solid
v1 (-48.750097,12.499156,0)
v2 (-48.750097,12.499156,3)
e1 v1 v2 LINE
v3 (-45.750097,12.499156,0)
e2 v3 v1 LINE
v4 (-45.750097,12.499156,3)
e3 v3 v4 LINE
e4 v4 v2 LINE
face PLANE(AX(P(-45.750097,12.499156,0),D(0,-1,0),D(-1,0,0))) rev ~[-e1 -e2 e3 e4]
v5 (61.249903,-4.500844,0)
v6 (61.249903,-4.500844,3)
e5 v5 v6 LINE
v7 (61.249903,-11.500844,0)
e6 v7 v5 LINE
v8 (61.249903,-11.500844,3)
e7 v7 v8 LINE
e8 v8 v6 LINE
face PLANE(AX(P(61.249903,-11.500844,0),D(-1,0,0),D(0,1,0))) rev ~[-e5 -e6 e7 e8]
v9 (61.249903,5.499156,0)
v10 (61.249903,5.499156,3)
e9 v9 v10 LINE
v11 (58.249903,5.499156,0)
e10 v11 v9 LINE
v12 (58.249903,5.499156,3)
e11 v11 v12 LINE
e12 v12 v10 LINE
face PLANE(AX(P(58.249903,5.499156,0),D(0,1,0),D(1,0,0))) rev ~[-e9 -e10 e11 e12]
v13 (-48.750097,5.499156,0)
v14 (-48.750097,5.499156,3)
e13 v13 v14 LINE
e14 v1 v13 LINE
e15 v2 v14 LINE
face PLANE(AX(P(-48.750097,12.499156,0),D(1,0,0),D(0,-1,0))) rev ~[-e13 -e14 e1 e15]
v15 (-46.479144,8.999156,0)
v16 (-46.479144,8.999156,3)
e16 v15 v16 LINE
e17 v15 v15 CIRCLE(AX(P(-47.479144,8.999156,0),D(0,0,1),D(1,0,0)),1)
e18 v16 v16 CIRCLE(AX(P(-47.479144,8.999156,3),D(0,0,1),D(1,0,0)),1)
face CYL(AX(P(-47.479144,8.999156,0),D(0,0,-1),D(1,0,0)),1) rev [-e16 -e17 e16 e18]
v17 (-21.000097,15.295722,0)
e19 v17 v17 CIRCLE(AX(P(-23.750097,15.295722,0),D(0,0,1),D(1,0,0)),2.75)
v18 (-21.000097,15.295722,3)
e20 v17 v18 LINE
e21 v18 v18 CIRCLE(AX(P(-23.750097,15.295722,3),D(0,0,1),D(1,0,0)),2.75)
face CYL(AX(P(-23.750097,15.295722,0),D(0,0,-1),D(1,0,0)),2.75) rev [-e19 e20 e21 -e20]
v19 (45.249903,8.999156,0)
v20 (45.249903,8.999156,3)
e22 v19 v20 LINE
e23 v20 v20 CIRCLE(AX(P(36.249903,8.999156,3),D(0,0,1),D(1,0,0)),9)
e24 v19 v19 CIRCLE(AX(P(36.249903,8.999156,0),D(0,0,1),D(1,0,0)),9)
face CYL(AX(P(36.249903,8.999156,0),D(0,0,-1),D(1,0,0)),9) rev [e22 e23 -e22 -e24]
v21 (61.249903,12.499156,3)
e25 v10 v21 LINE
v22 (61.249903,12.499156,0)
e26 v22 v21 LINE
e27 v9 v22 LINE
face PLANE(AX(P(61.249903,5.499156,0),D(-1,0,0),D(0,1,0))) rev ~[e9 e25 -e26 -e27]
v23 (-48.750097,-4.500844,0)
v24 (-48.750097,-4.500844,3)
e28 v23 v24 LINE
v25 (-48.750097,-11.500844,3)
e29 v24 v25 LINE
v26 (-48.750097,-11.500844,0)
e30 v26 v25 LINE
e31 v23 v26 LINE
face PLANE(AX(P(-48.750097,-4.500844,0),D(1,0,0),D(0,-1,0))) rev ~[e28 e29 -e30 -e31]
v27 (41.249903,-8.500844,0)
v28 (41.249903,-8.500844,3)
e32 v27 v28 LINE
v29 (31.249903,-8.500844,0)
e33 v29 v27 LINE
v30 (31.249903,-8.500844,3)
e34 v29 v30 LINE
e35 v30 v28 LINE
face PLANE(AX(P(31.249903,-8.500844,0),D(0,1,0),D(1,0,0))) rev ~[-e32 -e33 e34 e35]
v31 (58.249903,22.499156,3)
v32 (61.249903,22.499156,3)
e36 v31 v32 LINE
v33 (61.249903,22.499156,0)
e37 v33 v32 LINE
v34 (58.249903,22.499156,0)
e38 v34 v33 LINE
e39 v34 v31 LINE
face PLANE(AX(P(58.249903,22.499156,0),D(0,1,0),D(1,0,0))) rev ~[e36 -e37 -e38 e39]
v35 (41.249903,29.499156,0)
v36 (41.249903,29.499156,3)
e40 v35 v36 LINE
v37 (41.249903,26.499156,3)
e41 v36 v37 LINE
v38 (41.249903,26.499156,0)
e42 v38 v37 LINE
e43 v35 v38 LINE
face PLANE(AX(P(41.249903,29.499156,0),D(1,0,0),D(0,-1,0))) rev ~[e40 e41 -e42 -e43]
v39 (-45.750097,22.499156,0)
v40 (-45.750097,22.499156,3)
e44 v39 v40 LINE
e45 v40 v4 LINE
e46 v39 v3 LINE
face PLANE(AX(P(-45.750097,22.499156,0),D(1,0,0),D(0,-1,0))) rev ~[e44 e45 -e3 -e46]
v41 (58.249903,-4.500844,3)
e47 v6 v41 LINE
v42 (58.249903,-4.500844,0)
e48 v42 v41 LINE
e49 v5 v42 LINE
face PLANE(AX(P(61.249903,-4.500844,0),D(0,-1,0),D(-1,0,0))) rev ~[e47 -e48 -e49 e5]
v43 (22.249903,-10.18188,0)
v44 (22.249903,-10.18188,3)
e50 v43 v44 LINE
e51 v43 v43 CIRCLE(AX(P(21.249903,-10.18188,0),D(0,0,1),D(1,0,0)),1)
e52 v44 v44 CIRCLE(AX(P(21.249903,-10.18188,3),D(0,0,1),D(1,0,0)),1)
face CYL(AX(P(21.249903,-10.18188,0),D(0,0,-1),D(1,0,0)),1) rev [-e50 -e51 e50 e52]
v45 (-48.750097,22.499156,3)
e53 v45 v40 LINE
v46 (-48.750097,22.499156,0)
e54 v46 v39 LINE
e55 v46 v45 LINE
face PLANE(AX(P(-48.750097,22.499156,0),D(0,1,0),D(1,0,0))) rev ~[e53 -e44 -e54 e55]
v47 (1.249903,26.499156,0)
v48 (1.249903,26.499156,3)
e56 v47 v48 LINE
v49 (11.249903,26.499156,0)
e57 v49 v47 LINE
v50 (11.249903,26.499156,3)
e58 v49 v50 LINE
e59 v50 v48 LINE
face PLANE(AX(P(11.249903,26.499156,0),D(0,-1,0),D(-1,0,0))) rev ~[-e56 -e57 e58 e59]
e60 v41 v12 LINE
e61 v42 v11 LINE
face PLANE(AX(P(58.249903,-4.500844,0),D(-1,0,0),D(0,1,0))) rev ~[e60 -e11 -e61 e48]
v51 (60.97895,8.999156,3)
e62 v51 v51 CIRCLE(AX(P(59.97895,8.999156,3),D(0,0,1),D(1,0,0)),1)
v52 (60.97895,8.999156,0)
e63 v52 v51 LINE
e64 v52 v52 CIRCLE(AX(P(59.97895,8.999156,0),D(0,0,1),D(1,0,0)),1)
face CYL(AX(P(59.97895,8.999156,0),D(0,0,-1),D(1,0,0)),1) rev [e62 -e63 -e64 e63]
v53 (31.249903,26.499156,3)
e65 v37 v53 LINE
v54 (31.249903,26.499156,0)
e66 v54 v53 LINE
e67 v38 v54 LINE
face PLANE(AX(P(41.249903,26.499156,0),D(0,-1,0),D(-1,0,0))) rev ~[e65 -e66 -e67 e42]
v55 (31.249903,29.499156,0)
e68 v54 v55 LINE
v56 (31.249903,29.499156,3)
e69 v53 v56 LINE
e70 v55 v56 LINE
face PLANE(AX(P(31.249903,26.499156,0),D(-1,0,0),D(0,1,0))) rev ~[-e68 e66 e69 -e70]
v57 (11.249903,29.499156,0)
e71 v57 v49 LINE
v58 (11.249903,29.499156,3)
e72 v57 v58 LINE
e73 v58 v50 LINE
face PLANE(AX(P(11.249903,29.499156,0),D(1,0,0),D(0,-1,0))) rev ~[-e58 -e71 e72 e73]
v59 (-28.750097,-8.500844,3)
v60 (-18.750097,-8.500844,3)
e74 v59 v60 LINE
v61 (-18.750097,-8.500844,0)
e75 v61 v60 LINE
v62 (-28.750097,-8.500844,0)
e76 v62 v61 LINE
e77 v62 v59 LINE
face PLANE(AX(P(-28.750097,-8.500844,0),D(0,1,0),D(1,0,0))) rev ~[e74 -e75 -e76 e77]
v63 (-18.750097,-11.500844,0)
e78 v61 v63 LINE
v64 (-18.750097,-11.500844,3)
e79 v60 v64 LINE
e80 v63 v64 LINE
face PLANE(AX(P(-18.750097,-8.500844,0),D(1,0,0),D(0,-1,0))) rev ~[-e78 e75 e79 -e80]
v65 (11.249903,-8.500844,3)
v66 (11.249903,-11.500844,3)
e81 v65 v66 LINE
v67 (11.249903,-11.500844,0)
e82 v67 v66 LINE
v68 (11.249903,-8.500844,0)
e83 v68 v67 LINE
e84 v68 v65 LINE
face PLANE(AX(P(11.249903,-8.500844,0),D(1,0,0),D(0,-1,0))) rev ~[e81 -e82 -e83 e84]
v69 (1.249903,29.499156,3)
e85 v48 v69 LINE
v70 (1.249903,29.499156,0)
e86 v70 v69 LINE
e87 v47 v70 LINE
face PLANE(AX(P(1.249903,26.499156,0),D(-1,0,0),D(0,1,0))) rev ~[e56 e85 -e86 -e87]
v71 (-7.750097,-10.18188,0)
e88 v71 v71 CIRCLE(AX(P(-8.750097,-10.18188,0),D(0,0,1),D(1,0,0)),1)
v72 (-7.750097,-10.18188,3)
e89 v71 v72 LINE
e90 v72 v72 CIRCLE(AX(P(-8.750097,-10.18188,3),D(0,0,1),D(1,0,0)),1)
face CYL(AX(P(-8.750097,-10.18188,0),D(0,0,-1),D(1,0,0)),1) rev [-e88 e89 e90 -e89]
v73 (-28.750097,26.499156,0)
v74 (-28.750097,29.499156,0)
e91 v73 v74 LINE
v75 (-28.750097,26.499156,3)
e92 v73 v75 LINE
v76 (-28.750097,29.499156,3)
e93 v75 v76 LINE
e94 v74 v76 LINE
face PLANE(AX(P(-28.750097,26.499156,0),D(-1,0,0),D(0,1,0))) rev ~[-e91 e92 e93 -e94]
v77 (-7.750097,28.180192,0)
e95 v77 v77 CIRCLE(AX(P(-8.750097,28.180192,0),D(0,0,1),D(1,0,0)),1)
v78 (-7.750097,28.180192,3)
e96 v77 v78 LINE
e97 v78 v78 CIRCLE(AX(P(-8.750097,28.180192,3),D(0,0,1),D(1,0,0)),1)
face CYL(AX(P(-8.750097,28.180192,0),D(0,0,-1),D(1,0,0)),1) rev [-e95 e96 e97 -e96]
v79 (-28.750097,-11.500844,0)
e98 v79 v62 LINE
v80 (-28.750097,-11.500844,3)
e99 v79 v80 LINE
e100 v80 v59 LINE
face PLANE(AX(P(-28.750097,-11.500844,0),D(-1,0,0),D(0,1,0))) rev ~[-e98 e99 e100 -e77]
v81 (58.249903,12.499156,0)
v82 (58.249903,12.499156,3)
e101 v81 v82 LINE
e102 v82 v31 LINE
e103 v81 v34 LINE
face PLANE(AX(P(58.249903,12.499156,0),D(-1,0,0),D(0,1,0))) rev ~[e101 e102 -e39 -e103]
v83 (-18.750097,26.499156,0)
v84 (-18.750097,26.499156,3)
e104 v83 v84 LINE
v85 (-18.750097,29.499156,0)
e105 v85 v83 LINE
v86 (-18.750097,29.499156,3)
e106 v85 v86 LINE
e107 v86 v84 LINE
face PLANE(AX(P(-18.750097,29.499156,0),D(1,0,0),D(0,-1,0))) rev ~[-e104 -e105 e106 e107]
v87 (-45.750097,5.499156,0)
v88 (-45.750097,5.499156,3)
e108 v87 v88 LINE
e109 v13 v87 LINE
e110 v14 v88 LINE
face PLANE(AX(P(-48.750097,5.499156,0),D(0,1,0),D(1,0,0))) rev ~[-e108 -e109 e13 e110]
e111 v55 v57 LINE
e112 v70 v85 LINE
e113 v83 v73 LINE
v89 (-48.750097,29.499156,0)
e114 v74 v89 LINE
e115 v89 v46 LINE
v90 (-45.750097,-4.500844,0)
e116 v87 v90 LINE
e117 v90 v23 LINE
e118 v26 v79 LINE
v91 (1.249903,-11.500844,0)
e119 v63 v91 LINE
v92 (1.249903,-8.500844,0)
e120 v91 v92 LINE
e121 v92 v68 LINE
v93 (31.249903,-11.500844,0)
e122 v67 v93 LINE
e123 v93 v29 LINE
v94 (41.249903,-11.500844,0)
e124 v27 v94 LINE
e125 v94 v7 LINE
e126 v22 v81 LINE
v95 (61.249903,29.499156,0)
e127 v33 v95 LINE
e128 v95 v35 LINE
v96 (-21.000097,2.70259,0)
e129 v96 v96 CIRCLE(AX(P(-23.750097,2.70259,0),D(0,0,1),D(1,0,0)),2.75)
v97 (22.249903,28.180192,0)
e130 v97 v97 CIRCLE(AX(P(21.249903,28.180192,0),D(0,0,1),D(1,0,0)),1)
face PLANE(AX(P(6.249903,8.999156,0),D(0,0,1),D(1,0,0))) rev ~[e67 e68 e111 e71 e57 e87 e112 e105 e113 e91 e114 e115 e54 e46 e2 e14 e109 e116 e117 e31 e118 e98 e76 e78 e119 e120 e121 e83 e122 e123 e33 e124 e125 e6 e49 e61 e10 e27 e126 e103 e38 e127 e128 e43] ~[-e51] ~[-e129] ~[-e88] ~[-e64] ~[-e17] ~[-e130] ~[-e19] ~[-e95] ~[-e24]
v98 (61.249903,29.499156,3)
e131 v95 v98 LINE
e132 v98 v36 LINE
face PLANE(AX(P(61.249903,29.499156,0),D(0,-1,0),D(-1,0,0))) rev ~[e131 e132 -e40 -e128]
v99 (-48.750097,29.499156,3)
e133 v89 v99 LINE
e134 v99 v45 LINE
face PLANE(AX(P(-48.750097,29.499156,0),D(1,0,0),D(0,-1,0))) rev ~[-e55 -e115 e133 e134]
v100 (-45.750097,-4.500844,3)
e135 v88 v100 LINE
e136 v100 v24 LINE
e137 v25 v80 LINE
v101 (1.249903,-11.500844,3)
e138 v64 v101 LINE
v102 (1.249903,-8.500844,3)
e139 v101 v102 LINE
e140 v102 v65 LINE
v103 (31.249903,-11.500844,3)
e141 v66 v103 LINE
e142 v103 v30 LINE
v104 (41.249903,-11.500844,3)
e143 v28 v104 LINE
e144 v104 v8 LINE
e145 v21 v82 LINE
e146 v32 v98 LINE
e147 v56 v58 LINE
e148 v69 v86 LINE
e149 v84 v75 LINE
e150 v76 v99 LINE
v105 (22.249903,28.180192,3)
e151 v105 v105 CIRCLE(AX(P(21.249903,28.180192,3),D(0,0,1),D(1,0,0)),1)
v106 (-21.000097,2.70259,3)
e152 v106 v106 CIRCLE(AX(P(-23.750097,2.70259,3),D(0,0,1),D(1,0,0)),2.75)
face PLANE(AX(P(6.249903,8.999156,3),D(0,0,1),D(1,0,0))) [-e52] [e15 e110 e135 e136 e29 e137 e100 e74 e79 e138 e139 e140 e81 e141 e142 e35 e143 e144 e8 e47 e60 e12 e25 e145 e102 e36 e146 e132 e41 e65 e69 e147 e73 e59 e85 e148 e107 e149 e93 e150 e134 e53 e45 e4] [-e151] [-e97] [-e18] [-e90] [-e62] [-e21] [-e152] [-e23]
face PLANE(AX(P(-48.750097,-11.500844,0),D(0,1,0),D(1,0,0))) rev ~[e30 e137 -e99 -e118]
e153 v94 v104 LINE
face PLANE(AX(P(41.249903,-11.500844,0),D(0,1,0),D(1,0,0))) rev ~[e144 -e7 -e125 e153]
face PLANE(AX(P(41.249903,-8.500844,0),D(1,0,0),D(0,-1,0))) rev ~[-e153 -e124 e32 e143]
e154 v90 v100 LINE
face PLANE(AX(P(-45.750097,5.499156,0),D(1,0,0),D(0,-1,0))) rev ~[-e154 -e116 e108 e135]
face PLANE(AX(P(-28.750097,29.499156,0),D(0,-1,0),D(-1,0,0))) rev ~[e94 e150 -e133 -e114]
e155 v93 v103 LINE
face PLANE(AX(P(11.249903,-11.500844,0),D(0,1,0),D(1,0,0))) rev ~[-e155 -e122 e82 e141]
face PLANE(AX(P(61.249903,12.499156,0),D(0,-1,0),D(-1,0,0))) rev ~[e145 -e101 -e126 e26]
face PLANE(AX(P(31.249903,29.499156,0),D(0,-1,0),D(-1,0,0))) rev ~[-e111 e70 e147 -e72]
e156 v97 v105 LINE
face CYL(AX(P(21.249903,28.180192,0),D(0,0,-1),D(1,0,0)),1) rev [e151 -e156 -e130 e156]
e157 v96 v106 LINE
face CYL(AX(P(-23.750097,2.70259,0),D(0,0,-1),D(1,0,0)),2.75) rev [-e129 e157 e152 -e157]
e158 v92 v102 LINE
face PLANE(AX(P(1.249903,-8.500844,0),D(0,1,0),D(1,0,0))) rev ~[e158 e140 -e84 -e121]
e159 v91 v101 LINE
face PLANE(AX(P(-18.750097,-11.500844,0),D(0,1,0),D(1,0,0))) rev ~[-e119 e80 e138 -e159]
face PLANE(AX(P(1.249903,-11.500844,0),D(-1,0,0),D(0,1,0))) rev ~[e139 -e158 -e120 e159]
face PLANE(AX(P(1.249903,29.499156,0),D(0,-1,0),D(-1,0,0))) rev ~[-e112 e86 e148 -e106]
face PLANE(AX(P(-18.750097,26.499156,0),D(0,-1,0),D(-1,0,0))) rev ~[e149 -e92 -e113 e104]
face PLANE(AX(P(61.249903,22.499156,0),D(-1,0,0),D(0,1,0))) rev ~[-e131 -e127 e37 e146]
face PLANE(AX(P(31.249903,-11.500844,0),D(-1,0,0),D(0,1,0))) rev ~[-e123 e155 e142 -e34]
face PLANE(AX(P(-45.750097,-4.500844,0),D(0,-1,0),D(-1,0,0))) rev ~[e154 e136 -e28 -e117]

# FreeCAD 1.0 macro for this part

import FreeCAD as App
import Part
import Sketcher
from FreeCAD import Vector


def add_polygon(sketch, points):
    """Adds a closed chain of lines whose ends are joined by coincident constraints."""
    first, n = sketch.GeometryCount, len(points)
    for a, b in zip(points, points[1:] + points[:1]):
        sketch.addGeometry(Part.LineSegment(App.Vector(*a, 0), App.Vector(*b, 0)), False)
    for i in range(n):
        sketch.addConstraint(Sketcher.Constraint("Coincident", first + i, 2, first + (i + 1) % n, 1))

doc = App.newDocument("Part")
body = doc.addObject("PartDesign::Body", "Body")

sketch1 = doc.addObject("Sketcher::SketchObject", "Sketch")
body.addObject(sketch1)
sketch1.AttachmentSupport = (doc.XY_Plane, [""])
sketch1.MapMode = "FlatFace"
add_polygon(sketch1, [(-48.8, -4.5), (-48.8, -11.5), (-28.8, -11.5), (-28.8, -8.5), (-18.8, -8.5), (-18.8, -11.5), (1.2, -11.5), (1.2, -8.5), (11.2, -8.5), (11.2, -11.5), (31.2, -11.5), (31.2, -8.5), (41.2, -8.5), (41.2, -11.5), (61.2, -11.5), (61.2, -4.5), (58.2, -4.5), (58.2, 5.5), (61.2, 5.5), (61.2, 12.5), (58.2, 12.5), (58.2, 22.5), (61.2, 22.5), (61.2, 29.5), (41.2, 29.5), (41.2, 26.5), (31.2, 26.5), (31.2, 29.5), (11.2, 29.5), (11.2, 26.5), (1.2, 26.5), (1.2, 29.5), (-18.8, 29.5), (-18.8, 26.5), (-28.8, 26.5), (-28.8, 29.5), (-48.8, 29.5), (-48.8, 22.5), (-45.8, 22.5), (-45.8, 12.5), (-48.8, 12.5), (-48.8, 5.5), (-45.8, 5.5), (-45.8, -4.5)])
sketch1.addGeometry(Part.Circle(Vector(-8.8, -10.2, 0), Vector(0, 0, 1), 1), False)
sketch1.addGeometry(Part.Circle(Vector(-23.8, 2.7, 0), Vector(0, 0, 1), 2.8), False)
sketch1.addGeometry(Part.Circle(Vector(21.2, -10.2, 0), Vector(0, 0, 1), 1), False)
sketch1.addGeometry(Part.Circle(Vector(-47.5, 9, 0), Vector(0, 0, 1), 1), False)
sketch1.addGeometry(Part.Circle(Vector(-23.8, 15.3, 0), Vector(0, 0, 1), 2.8), False)
sketch1.addGeometry(Part.Circle(Vector(-8.8, 28.2, 0), Vector(0, 0, 1), 1), False)
sketch1.addGeometry(Part.Circle(Vector(36.2, 9, 0), Vector(0, 0, 1), 9), False)
sketch1.addGeometry(Part.Circle(Vector(60, 9, 0), Vector(0, 0, 1), 1), False)
sketch1.addGeometry(Part.Circle(Vector(21.2, 28.2, 0), Vector(0, 0, 1), 1), False)
sketch1.addConstraint([
    Sketcher.Constraint("Vertical", 0),
    Sketcher.Constraint("Horizontal", 1),
    Sketcher.Constraint("Vertical", 2),
    Sketcher.Constraint("Horizontal", 3),
    Sketcher.Constraint("Vertical", 4),
    Sketcher.Constraint("Horizontal", 5),
    Sketcher.Constraint("Vertical", 6),
    Sketcher.Constraint("Horizontal", 7),
    Sketcher.Constraint("Vertical", 8),
    Sketcher.Constraint("Horizontal", 9),
    Sketcher.Constraint("Vertical", 10),
    Sketcher.Constraint("Horizontal", 11),
    Sketcher.Constraint("Vertical", 12),
    Sketcher.Constraint("Horizontal", 13),
    Sketcher.Constraint("Vertical", 14),
    Sketcher.Constraint("Horizontal", 15),
    Sketcher.Constraint("Vertical", 16),
    Sketcher.Constraint("Horizontal", 17),
    Sketcher.Constraint("Vertical", 18),
    Sketcher.Constraint("Horizontal", 19),
    Sketcher.Constraint("Vertical", 20),
    Sketcher.Constraint("Horizontal", 21),
    Sketcher.Constraint("Vertical", 22),
    Sketcher.Constraint("Horizontal", 23),
    Sketcher.Constraint("Vertical", 24),
    Sketcher.Constraint("Horizontal", 25),
    Sketcher.Constraint("Vertical", 26),
    Sketcher.Constraint("Horizontal", 27),
    Sketcher.Constraint("Vertical", 28),
    Sketcher.Constraint("Horizontal", 29),
    Sketcher.Constraint("Vertical", 30),
    Sketcher.Constraint("Horizontal", 31),
    Sketcher.Constraint("Vertical", 32),
    Sketcher.Constraint("Horizontal", 33),
    Sketcher.Constraint("Vertical", 34),
    Sketcher.Constraint("Horizontal", 35),
    Sketcher.Constraint("Vertical", 36),
    Sketcher.Constraint("Horizontal", 37),
    Sketcher.Constraint("Vertical", 38),
    Sketcher.Constraint("Horizontal", 39),
    Sketcher.Constraint("Vertical", 40),
    Sketcher.Constraint("Horizontal", 41),
    Sketcher.Constraint("Vertical", 42),
    Sketcher.Constraint("Horizontal", 43),
    Sketcher.Constraint("Equal", 44, 46),
    Sketcher.Constraint("Equal", 46, 47),
    Sketcher.Constraint("Equal", 45, 48),
    Sketcher.Constraint("Equal", 47, 49),
    Sketcher.Constraint("Equal", 49, 51),
    Sketcher.Constraint("Equal", 51, 52),
    Sketcher.Constraint("Horizontal", 44, 3, 46, 3),
    Sketcher.Constraint("Horizontal", 47, 3, 50, 3),
    Sketcher.Constraint("Horizontal", 50, 3, 51, 3),
    Sketcher.Constraint("Horizontal", 49, 3, 52, 3),
    Sketcher.Constraint("Horizontal", 1, 2, 4, 2),
    Sketcher.Constraint("Horizontal", 3, 2, 6, 2),
    Sketcher.Constraint("Horizontal", 5, 2, 8, 2),
    Sketcher.Constraint("Horizontal", 7, 2, 10, 2),
    Sketcher.Constraint("Horizontal", 9, 2, 12, 2),
    Sketcher.Constraint("Horizontal", 23, 2, 26, 2),
    Sketcher.Constraint("Horizontal", 25, 2, 28, 2),
    Sketcher.Constraint("Horizontal", 27, 2, 30, 2),
    Sketcher.Constraint("Horizontal", 29, 2, 32, 2),
    Sketcher.Constraint("Horizontal", 31, 2, 34, 2),
    Sketcher.Constraint("Horizontal", 21, 2, 36, 2),
    Sketcher.Constraint("Horizontal", 19, 2, 38, 2),
    Sketcher.Constraint("Horizontal", 17, 2, 40, 2),
    Sketcher.Constraint("Horizontal", 15, 2, 42, 2),
    Sketcher.Constraint("Vertical", 45, 3, 48, 3),
    Sketcher.Constraint("Vertical", 44, 3, 49, 3),
    Sketcher.Constraint("Vertical", 46, 3, 52, 3),
    Sketcher.Constraint("Vertical", 14, 2, 17, 2),
    Sketcher.Constraint("Vertical", 16, 2, 19, 2),
    Sketcher.Constraint("Vertical", 18, 2, 21, 2),
    Sketcher.Constraint("Vertical", 12, 2, 23, 2),
    Sketcher.Constraint("Vertical", 10, 2, 25, 2),
    Sketcher.Constraint("Vertical", 8, 2, 27, 2),
    Sketcher.Constraint("Vertical", 6, 2, 29, 2),
    Sketcher.Constraint("Vertical", 4, 2, 31, 2),
    Sketcher.Constraint("Vertical", 2, 2, 33, 2),
    Sketcher.Constraint("Vertical", 0, 2, 35, 2),
    Sketcher.Constraint("Vertical", 36, 2, 39, 2),
    Sketcher.Constraint("Vertical", 38, 2, 41, 2),
    Sketcher.Constraint("Equal", 1, 5),
    Sketcher.Constraint("Equal", 3, 7),
    Sketcher.Constraint("Equal", 5, 9),
    Sketcher.Constraint("Equal", 7, 11),
    Sketcher.Constraint("Equal", 9, 13),
    Sketcher.Constraint("Equal", 21, 37),
    Sketcher.Constraint("Equal", 43, 2),
    Sketcher.Constraint("Equal", 33, 16),
    Sketcher.Constraint("Equal", 14, 18),
    Sketcher.Constraint("Equal", 16, 20),
    Sketcher.Constraint("Equal", 18, 22),
    Sketcher.Constraint("Equal", 12, 24),
    Sketcher.Constraint("Diameter", 44, 2.0),
    Sketcher.Constraint("Diameter", 50, 18.0),
    Sketcher.Constraint("Diameter", 45, 5.5),
    Sketcher.Constraint("DistanceX", 1, 1, 1, 2, 20.0),
    Sketcher.Constraint("DistanceX", 3, 1, 3, 2, 10.0),
    Sketcher.Constraint("DistanceX", 15, 2, 15, 1, 3.0),
    Sketcher.Constraint("DistanceY", 0, 2, 0, 1, 7.0),
    Sketcher.Constraint("DistanceX", 45, 3, 44, 3, 15.0),
    Sketcher.Constraint("DistanceX", 44, 3, 46, 3, 30.0),
    Sketcher.Constraint("DistanceX", 46, 3, 50, 3, 15.0),
    Sketcher.Constraint("DistanceX", 0, 2, 45, 3, 25.0),
    Sketcher.Constraint("DistanceY", 0, 2, 47, 3, 20.5),
    Sketcher.Constraint("DistanceY", 44, 3, 48, 3, 25.477602),
    Sketcher.Constraint("DistanceY", 44, 3, -1, 1, 10.18188),
    Sketcher.Constraint("DistanceY", -1, 1, 45, 3, 2.70259),
    Sketcher.Constraint("DistanceX", -1, 1, 51, 3, 59.97895),
    Sketcher.Constraint("DistanceY", 48, 3, 49, 3, 12.88447),
    Sketcher.Constraint("DistanceX", 44, 3, -1, 1, 8.750097),
    Sketcher.Constraint("DistanceX", 47, 3, -1, 1, 47.479144),
    Sketcher.Constraint("DistanceY", -1, 1, 47, 3, 8.999156),
])
pad1 = doc.addObject("PartDesign::Pad", "Pad")
body.addObject(pad1)
pad1.Profile = sketch1
pad1.Length = 3

doc.recompute()
